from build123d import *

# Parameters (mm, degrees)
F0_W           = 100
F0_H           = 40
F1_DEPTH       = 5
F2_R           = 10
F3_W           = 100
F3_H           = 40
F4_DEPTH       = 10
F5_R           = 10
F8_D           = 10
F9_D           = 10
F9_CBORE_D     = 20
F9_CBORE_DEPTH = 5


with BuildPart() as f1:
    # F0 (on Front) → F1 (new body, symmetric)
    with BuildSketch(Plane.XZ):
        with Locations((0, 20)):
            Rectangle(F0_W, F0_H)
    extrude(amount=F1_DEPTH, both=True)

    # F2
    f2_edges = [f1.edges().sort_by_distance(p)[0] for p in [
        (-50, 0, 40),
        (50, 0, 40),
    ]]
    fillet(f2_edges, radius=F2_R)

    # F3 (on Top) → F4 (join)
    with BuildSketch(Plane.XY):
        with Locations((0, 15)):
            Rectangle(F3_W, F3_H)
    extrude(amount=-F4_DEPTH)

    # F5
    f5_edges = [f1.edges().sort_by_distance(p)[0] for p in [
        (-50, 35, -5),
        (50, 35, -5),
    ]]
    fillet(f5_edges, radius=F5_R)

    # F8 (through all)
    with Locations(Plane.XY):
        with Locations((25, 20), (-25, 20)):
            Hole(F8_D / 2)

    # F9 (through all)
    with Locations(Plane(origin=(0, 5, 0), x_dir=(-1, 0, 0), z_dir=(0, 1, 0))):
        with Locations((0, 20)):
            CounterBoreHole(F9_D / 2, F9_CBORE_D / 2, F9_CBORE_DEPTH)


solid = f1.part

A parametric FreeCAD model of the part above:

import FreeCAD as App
import Part
import Sketcher

V = App.Vector


def edges_at(feature, points):
    """Names of the edges that pass closest to the given points."""
    edges = feature.Shape.Edges
    near = lambda p: min(range(len(edges)), key=lambda i: edges[i].distToShape(Part.Vertex(*p))[0])
    return sorted({f"Edge{near(p) + 1}" for p in points})


def add_polygon(sketch, points):
    """Adds a closed chain of lines whose ends are joined by coincident constraints."""
    first, n = sketch.GeometryCount, len(points)
    for a, b in zip(points, points[1:] + points[:1]):
        sketch.addGeometry(Part.LineSegment(App.Vector(*a, 0), App.Vector(*b, 0)), False)
    for i in range(n):
        sketch.addConstraint(Sketcher.Constraint("Coincident", first + i, 2, first + (i + 1) % n, 1))

doc = App.newDocument("Part")
body = doc.addObject("PartDesign::Body", "Body")

# Sketch on XZ plane
sketch1 = doc.addObject("Sketcher::SketchObject", "Sketch")
body.addObject(sketch1)
sketch1.AttachmentSupport = (doc.XZ_Plane, [""])
sketch1.MapMode = "FlatFace"
add_polygon(sketch1, [(-50, 40), (-50, 0), (50, 0), (50, 40)])  # lines 0-3
sketch1.addConstraint([
    Sketcher.Constraint("Vertical", 0),
    Sketcher.Constraint("Horizontal", 1),
    Sketcher.Constraint("Vertical", 2),
    Sketcher.Constraint("Horizontal", 3),
    Sketcher.Constraint("Symmetric", 0, 2, 1, 2, -1, 1),
    Sketcher.Constraint("DistanceX", 1, 1, 1, 2, 100.0),
    Sketcher.Constraint("DistanceY", 0, 2, 0, 1, 40.0),
])
pad1 = doc.addObject("PartDesign::Pad", "Pad")
body.addObject(pad1)
pad1.Profile = sketch1
pad1.Length = 10
pad1.Midplane = True
doc.recompute()

fillet = doc.addObject("PartDesign::Fillet", "Fillet")
body.addObject(fillet)
fillet.Base = (pad1, edges_at(pad1, [(-50, 0, 40), (50, 0, 40)]))
fillet.Radius = 10

# Sketch on XY plane
sketch2 = doc.addObject("Sketcher::SketchObject", "Sketch001")
body.addObject(sketch2)
sketch2.AttachmentSupport = (doc.XY_Plane, [""])
sketch2.MapMode = "FlatFace"
add_polygon(sketch2, [(-50, 35), (-50, -5), (50, -5), (50, 35)])  # lines 0-3
sketch2.addConstraint([
    Sketcher.Constraint("Vertical", 0),
    Sketcher.Constraint("Horizontal", 1),
    Sketcher.Constraint("Vertical", 2),
    Sketcher.Constraint("Horizontal", 3),
    Sketcher.Constraint("DistanceX", 1, 1, 1, 2, 100.0),
    Sketcher.Constraint("DistanceY", 0, 2, 0, 1, 40.0),
    Sketcher.Constraint("DistanceX", 0, 2, -1, 1, 50.0),
    Sketcher.Constraint("DistanceY", 0, 2, -1, 1, 5.0),
])
pad2 = doc.addObject("PartDesign::Pad", "Pad001")
body.addObject(pad2)
pad2.Profile = sketch2
pad2.Length = 10
pad2.Reversed = True
doc.recompute()

fillet2 = doc.addObject("PartDesign::Fillet", "Fillet001")
body.addObject(fillet2)
fillet2.Base = (pad2, edges_at(pad2, [(-50, 35, -5), (50, 35, -5)]))
fillet2.Radius = 10

# Sketch on XY plane
sketch3 = doc.addObject("Sketcher::SketchObject", "Sketch002")
body.addObject(sketch3)
sketch3.AttachmentSupport = (doc.XY_Plane, [""])
sketch3.MapMode = "FlatFace"
sketch3.addGeometry([
    Part.Circle(V(25, 20, 0), V(0, 0, 1), 5),
    Part.Circle(V(-25, 20, 0), V(0, 0, 1), 5),
], False)
sketch3.addConstraint([
    Sketcher.Constraint("Equal", 0, 1),
    Sketcher.Constraint("Symmetric", 0, 3, 1, 3, -2),
    Sketcher.Constraint("Diameter", 0, 10.0),
    Sketcher.Constraint("DistanceX", -1, 1, 0, 3, 25.0),
    Sketcher.Constraint("DistanceY", -1, 1, 0, 3, 20.0),
])
doc.recompute()
hole = doc.addObject("PartDesign::Hole", "Hole")
body.addObject(hole)
hole.Profile = sketch3
hole.ThreadType = "None"
hole.Diameter = 10
hole.DepthType = "ThroughAll"

# Sketch on XZ plane
sketch4 = doc.addObject("Sketcher::SketchObject", "Sketch003")
body.addObject(sketch4)
sketch4.AttachmentSupport = (doc.XZ_Plane, [""])
sketch4.MapMode = "FlatFace"
sketch4.AttachmentOffset = App.Placement(V(0, 0, -5), App.Rotation())
sketch4.addGeometry(Part.Circle(V(0, 20, 0), V(0, 0, 1), 5), False)
sketch4.addConstraint([
    Sketcher.Constraint("PointOnObject", 0, 3, -2),
    Sketcher.Constraint("Diameter", 0, 10.0),
    Sketcher.Constraint("DistanceY", -1, 1, 0, 3, 20.0),
])
doc.recompute()
hole2 = doc.addObject("PartDesign::Hole", "Hole001")
body.addObject(hole2)
hole2.Profile = sketch4
hole2.ThreadType = "None"
hole2.Diameter = 10
hole2.DepthType = "ThroughAll"
hole2.HoleCutType = "Counterbore"
hole2.HoleCutDiameter = 20
hole2.HoleCutDepth = 5
hole2.Reversed = True

doc.recompute()
